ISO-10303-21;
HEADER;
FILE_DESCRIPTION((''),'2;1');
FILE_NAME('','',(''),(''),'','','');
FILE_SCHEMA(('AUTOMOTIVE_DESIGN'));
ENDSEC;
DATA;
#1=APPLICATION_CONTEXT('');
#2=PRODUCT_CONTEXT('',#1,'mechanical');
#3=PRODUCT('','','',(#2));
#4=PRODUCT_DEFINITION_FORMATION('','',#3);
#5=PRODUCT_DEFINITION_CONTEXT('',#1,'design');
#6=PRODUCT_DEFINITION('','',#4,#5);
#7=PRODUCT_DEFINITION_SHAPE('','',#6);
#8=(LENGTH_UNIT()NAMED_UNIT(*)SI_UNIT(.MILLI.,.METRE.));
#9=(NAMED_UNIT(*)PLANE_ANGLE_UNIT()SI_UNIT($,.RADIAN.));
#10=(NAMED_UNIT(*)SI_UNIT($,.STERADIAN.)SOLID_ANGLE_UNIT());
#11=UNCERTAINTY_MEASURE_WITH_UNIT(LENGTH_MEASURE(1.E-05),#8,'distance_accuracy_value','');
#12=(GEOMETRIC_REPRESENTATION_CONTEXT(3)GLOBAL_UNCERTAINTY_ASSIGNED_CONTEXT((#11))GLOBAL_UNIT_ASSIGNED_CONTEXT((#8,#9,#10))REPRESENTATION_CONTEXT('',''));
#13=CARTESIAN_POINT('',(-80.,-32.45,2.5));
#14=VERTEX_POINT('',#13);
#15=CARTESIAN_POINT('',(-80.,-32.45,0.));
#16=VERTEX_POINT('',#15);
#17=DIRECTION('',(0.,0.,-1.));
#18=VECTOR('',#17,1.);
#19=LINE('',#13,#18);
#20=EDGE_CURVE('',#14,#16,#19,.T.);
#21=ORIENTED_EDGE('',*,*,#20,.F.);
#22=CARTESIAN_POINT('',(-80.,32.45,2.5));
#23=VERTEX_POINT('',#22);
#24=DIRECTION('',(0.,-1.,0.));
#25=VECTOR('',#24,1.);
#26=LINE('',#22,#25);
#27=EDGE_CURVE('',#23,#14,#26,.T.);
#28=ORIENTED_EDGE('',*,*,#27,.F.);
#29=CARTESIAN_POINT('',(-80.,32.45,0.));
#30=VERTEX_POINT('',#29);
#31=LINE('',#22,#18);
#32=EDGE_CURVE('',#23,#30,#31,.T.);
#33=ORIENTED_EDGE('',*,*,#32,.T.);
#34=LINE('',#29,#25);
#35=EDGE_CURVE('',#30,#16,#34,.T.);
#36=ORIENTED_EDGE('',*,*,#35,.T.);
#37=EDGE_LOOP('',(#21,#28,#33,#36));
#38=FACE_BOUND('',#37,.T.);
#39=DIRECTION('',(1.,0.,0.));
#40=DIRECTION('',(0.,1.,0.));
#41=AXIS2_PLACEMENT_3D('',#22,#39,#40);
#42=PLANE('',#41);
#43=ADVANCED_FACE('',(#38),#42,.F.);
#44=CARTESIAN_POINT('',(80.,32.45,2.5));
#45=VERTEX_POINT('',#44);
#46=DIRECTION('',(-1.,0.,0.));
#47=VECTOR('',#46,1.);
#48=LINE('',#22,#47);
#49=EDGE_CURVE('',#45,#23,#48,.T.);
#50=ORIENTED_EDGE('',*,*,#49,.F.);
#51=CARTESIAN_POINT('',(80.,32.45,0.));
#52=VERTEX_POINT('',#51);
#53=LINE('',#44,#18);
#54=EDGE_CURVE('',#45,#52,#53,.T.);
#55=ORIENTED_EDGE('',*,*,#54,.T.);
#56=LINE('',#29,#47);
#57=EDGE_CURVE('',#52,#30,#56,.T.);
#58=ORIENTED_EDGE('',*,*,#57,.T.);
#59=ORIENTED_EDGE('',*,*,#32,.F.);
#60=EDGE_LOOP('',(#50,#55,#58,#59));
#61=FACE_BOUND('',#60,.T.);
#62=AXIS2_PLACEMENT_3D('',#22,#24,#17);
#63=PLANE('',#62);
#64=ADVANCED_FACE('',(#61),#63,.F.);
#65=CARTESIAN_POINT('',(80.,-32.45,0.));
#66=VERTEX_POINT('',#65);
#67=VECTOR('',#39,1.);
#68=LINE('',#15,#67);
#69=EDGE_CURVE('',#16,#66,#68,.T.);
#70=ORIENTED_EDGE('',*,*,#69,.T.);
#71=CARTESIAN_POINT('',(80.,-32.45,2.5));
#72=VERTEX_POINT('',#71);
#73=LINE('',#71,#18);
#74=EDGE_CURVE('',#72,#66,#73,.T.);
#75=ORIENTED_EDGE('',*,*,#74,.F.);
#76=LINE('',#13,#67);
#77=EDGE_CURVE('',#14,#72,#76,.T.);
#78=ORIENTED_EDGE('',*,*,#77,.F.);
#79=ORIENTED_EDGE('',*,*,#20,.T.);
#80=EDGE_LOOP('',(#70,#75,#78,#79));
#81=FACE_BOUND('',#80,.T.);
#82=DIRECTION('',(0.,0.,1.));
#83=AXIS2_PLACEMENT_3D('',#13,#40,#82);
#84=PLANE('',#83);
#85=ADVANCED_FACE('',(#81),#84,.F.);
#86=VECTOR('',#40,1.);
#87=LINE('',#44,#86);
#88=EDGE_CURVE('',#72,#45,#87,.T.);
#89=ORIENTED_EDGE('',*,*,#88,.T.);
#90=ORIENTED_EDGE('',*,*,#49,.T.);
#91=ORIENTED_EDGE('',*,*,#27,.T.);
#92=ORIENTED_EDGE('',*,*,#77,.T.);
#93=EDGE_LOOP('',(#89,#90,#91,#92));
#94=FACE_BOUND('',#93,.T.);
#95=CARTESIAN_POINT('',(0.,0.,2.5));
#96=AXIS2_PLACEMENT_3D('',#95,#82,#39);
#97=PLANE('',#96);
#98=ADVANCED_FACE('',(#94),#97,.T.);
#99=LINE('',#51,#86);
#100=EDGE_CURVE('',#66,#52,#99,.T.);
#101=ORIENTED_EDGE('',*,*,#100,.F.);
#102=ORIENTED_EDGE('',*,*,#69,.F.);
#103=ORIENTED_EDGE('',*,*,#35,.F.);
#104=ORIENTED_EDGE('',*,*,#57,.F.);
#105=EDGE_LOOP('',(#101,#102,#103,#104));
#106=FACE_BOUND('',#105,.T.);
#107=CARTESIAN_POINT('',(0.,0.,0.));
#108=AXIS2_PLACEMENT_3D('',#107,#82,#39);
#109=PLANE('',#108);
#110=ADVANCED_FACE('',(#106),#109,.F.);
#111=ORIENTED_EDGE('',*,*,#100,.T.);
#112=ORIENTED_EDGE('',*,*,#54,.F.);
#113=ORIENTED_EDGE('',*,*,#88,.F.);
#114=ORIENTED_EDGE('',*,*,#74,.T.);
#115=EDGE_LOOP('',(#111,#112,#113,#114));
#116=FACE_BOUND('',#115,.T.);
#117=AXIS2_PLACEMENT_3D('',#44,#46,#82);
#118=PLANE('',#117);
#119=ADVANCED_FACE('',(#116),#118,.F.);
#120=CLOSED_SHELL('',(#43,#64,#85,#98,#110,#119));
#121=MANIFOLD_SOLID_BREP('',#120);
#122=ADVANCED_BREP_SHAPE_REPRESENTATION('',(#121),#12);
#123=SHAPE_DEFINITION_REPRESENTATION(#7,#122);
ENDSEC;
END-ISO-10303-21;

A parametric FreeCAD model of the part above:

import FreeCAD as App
import Part
import Sketcher
Q = App.Units.Quantity

doc = App.newDocument("Part")
params = doc.addObject("Spreadsheet::Sheet", "Params")
for row, (alias, value) in enumerate([
    ("sketch1_width", "160 mm"),
    ("sketch1_height", "64.9 mm"),
    ("pad1_length", "2.5 mm"),
], start=1):
    params.set(f"A{row}", alias)
    params.set(f"B{row}", "=" + value)
    params.setAlias(f"B{row}", alias)

body = doc.addObject("PartDesign::Body", "Body")

# Sketch on XY plane
sketch1 = body.newObject("Sketcher::SketchObject", "Sketch")
sketch1.AttachmentSupport = (doc.getObject("XY_Plane"), [""])
sketch1.MapMode = "FlatFace"
sketch1.addGeometry([
    Part.LineSegment(App.Vector(-80, 32, 0), App.Vector(-80, -32, 0)),
    Part.LineSegment(App.Vector(-80, -32, 0), App.Vector(80, -32, 0)),
    Part.LineSegment(App.Vector(80, -32, 0), App.Vector(80, 32, 0)),
    Part.LineSegment(App.Vector(80, 32, 0), App.Vector(-80, 32, 0)),
], False)
sketch1.addConstraint([
    Sketcher.Constraint("Coincident", 0, 2, 1, 1),
    Sketcher.Constraint("Coincident", 1, 2, 2, 1),
    Sketcher.Constraint("Coincident", 2, 2, 3, 1),
    Sketcher.Constraint("Coincident", 3, 2, 0, 1),
    Sketcher.Constraint("Vertical", 0),
    Sketcher.Constraint("Horizontal", 1),
    Sketcher.Constraint("Vertical", 2),
    Sketcher.Constraint("Horizontal", 3),
    Sketcher.Constraint("Symmetric", 0, 2, 2, 2, -1, 1),
    Sketcher.Constraint("DistanceX", 1, 1, 1, 2, Q("160 mm")),
    Sketcher.Constraint("DistanceY", 0, 2, 0, 1, Q("64.9 mm")),
])
sketch1.setExpression("Constraints[9]", "Params.sketch1_width")
sketch1.setExpression("Constraints[10]", "Params.sketch1_height")
pad1 = body.newObject("PartDesign::Pad", "Pad")
pad1.Profile = sketch1
pad1.setExpression("Length", "Params.pad1_length")

doc.recompute()
